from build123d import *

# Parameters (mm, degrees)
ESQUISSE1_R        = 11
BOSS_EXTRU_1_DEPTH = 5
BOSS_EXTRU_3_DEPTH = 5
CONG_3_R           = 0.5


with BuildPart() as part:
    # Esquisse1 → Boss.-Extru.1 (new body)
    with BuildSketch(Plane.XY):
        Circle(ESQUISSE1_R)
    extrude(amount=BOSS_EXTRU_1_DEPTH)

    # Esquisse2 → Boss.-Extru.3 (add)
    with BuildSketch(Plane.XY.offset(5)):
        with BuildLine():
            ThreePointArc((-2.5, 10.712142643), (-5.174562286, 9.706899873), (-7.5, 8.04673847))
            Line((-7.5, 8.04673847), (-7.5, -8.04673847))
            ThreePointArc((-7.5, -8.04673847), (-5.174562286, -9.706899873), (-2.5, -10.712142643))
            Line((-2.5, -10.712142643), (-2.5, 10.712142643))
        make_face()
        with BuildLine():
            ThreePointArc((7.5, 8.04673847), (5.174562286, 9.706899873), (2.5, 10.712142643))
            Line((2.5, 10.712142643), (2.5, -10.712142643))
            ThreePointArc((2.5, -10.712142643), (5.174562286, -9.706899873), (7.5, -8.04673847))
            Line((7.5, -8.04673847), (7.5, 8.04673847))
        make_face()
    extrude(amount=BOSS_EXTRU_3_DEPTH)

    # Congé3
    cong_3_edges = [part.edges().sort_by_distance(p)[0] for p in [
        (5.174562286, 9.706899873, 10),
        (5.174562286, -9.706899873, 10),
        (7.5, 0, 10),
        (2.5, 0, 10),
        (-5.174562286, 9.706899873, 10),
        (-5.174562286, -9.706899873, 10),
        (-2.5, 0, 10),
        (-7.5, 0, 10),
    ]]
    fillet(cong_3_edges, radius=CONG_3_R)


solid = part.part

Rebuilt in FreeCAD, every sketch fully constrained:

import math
import FreeCAD as App
import Part
import Sketcher

V = App.Vector
Q = App.Units.Quantity


def edges_at(feature, points):
    """Names of the edges that pass closest to the given points."""
    edges = feature.Shape.Edges
    near = lambda p: min(range(len(edges)), key=lambda i: edges[i].distToShape(Part.Vertex(*p))[0])
    return sorted({f"Edge{near(p) + 1}" for p in points})

doc = App.newDocument("Part")
params = doc.addObject("Spreadsheet::Sheet", "Params")
for row, (alias, value) in enumerate([
    ("sketch1_diameter", "22 mm"),
    ("pad1_length", "5 mm"),
    ("sketch2_radius", "11 mm"),
    ("pad2_length", "5 mm"),
    ("fillet_radius", "0.5 mm"),
], start=1):
    params.set(f"A{row}", alias)
    params.set(f"B{row}", "=" + value)
    params.setAlias(f"B{row}", alias)

body = doc.addObject("PartDesign::Body", "Body")

# Sketch on XY plane
sketch1 = doc.addObject("Sketcher::SketchObject", "Sketch")
body.addObject(sketch1)
sketch1.AttachmentSupport = (doc.XY_Plane, [""])
sketch1.MapMode = "FlatFace"
sketch1.addGeometry(Part.Circle(V(0, 0, 0), V(0, 0, 1), 11), False)
sketch1.addConstraint(Sketcher.Constraint("Coincident", 0, 3, -1, 1))
sketch1.addConstraint(Sketcher.Constraint("Diameter", 0, Q("22 mm")))
sketch1.setExpression("Constraints[1]", "Params.sketch1_diameter")
pad1 = doc.addObject("PartDesign::Pad", "Pad")
body.addObject(pad1)
pad1.Profile = sketch1
pad1.setExpression("Length", "Params.pad1_length")

# Sketch on XY plane
sketch2 = doc.addObject("Sketcher::SketchObject", "Sketch001")
body.addObject(sketch2)
sketch2.AttachmentSupport = (doc.XY_Plane, [""])
sketch2.MapMode = "FlatFace"
sketch2.AttachmentOffset = App.Placement(V(0, 0, 5), App.Rotation())
sketch2.addGeometry(Part.ArcOfCircle(Part.Circle(V(0, 0, 0), V(0, 0, 1), 11), math.radians(103), math.radians(133)), False)
sketch2.addGeometry(Part.LineSegment(V(-8, 8, 0), V(-8, -8, 0)), False)
sketch2.addGeometry(Part.ArcOfCircle(Part.Circle(V(0, 0, 0), V(0, 0, 1), 11), math.radians(-133), math.radians(-103)), False)
sketch2.addGeometry(Part.LineSegment(V(-2, -11, 0), V(-2, 11, 0)), False)
sketch2.addGeometry(Part.ArcOfCircle(Part.Circle(V(0, 0, 0), V(0, 0, 1), 11), math.radians(47), math.radians(77)), False)
sketch2.addGeometry(Part.LineSegment(V(2, 11, 0), V(2, -11, 0)), False)
sketch2.addGeometry(Part.ArcOfCircle(Part.Circle(V(0, 0, 0), V(0, 0, 1), 11), math.radians(-77), math.radians(-47)), False)
sketch2.addGeometry(Part.LineSegment(V(8, -8, 0), V(8, 8, 0)), False)
sketch2.addConstraint(Sketcher.Constraint("Coincident", 0, 2, 1, 1))
sketch2.addConstraint(Sketcher.Constraint("Coincident", 1, 2, 2, 1))
sketch2.addConstraint(Sketcher.Constraint("Coincident", 2, 2, 3, 1))
sketch2.addConstraint(Sketcher.Constraint("Coincident", 3, 2, 0, 1))
sketch2.addConstraint(Sketcher.Constraint("Coincident", 4, 2, 5, 1))
sketch2.addConstraint(Sketcher.Constraint("Coincident", 5, 2, 6, 1))
sketch2.addConstraint(Sketcher.Constraint("Coincident", 6, 2, 7, 1))
sketch2.addConstraint(Sketcher.Constraint("Coincident", 7, 2, 4, 1))
sketch2.addConstraint(Sketcher.Constraint("Vertical", 1))
sketch2.addConstraint(Sketcher.Constraint("Vertical", 3))
sketch2.addConstraint(Sketcher.Constraint("Vertical", 5))
sketch2.addConstraint(Sketcher.Constraint("Vertical", 7))
sketch2.addConstraint(Sketcher.Constraint("Coincident", 0, 3, -1, 1))
sketch2.addConstraint(Sketcher.Constraint("Coincident", 2, 3, -1, 1))
sketch2.addConstraint(Sketcher.Constraint("Coincident", 4, 3, -1, 1))
sketch2.addConstraint(Sketcher.Constraint("Coincident", 6, 3, -1, 1))
sketch2.addConstraint(Sketcher.Constraint("Equal", 0, 2))
sketch2.addConstraint(Sketcher.Constraint("Equal", 2, 4))
sketch2.addConstraint(Sketcher.Constraint("Equal", 4, 6))
sketch2.addConstraint(Sketcher.Constraint("Horizontal", 3, 2, 4, 2))
sketch2.addConstraint(Sketcher.Constraint("Horizontal", 1, 2, 6, 2))
sketch2.addConstraint(Sketcher.Constraint("Radius", 0, Q("11 mm")))
sketch2.addConstraint(Sketcher.Constraint("DistanceX", 1, 2, 2, 2, Q("5 mm")))
sketch2.addConstraint(Sketcher.Constraint("DistanceX", 3, 2, 4, 2, Q("5 mm")))
sketch2.setExpression("Constraints[21]", "Params.sketch2_radius")
pad2 = doc.addObject("PartDesign::Pad", "Pad001")
body.addObject(pad2)
pad2.Profile = sketch2
pad2.setExpression("Length", "Params.pad2_length")
doc.recompute()

fillet = doc.addObject("PartDesign::Fillet", "Fillet")
body.addObject(fillet)
fillet.Base = (pad2, edges_at(pad2, [
    (5.175, 9.707, 10),
    (5.175, -9.707, 10),
    (7.5, 0, 10),
    (2.5, 0, 10),
    (-5.175, 9.707, 10),
    (-5.175, -9.707, 10),
    (-2.5, 0, 10),
    (-7.5, 0, 10),
]))
fillet.setExpression("Radius", "Params.fillet_radius")

doc.recompute()
